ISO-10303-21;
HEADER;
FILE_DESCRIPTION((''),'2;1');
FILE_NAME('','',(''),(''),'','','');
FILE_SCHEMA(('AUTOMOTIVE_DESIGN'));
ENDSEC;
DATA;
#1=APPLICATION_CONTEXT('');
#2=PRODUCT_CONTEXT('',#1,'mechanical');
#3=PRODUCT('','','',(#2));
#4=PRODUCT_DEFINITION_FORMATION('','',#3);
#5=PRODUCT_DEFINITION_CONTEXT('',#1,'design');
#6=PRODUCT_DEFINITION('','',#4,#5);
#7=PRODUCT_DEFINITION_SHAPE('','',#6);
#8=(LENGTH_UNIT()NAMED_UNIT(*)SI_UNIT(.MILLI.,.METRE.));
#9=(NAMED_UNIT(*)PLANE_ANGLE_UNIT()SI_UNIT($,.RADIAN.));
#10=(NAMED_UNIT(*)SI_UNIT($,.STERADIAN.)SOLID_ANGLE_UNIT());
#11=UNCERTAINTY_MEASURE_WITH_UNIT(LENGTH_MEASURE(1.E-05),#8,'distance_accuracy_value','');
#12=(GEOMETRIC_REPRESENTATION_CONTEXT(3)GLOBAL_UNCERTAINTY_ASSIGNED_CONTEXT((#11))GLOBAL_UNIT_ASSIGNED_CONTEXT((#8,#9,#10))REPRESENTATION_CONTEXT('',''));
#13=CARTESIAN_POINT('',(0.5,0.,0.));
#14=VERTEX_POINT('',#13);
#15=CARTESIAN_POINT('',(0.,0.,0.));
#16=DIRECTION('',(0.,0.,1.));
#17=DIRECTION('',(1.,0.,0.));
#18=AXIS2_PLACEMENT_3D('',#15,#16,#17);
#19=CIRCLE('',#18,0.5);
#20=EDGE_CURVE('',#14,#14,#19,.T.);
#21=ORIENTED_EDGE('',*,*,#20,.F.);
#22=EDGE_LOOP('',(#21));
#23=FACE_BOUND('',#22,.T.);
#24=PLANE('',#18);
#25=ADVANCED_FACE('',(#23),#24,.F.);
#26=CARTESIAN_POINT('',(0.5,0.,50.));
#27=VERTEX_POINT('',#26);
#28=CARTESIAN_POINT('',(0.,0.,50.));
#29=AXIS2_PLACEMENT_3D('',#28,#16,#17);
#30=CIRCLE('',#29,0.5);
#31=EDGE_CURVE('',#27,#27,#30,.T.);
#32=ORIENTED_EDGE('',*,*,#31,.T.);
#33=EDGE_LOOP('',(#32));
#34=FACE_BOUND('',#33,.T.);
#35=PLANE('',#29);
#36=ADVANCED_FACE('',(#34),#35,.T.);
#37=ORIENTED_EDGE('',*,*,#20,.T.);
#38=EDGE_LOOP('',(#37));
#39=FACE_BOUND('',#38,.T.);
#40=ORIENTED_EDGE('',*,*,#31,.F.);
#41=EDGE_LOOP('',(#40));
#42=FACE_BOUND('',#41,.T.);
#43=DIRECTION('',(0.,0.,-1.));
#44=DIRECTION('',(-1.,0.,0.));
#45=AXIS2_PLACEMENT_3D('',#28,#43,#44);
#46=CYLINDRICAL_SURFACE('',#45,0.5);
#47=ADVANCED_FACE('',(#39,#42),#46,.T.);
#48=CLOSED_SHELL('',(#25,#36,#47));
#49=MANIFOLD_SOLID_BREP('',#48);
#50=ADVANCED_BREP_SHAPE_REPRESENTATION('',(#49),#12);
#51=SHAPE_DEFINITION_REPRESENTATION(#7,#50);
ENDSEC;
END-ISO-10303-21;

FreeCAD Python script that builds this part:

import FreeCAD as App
import Part
import Sketcher
from FreeCAD import Vector
Q = App.Units.Quantity

doc = App.newDocument("Part")
params = doc.addObject("Spreadsheet::Sheet", "Params")
for row, (alias, value) in enumerate([
    ("sketch1_diameter", "1 mm"),
    ("pad1_length", "50 mm"),
], start=1):
    params.set(f"A{row}", alias)
    params.set(f"B{row}", "=" + value)
    params.setAlias(f"B{row}", alias)

body = doc.addObject("PartDesign::Body", "Body")

sketch1 = doc.addObject("Sketcher::SketchObject", "Sketch")
body.addObject(sketch1)
sketch1.AttachmentSupport = (doc.XY_Plane, [""])
sketch1.MapMode = "FlatFace"
sketch1.addGeometry(Part.Circle(Vector(0, 0, 0), Vector(0, 0, 1), 0.5), False)
sketch1.addConstraint([
    Sketcher.Constraint("Coincident", 0, 3, -1, 1),
    Sketcher.Constraint("Diameter", 0, Q("1 mm")),
])
sketch1.setExpression("Constraints[1]", "Params.sketch1_diameter")
pad1 = doc.addObject("PartDesign::Pad", "Pad")
body.addObject(pad1)
pad1.Profile = sketch1
pad1.setExpression("Length", "Params.pad1_length")

doc.recompute()
